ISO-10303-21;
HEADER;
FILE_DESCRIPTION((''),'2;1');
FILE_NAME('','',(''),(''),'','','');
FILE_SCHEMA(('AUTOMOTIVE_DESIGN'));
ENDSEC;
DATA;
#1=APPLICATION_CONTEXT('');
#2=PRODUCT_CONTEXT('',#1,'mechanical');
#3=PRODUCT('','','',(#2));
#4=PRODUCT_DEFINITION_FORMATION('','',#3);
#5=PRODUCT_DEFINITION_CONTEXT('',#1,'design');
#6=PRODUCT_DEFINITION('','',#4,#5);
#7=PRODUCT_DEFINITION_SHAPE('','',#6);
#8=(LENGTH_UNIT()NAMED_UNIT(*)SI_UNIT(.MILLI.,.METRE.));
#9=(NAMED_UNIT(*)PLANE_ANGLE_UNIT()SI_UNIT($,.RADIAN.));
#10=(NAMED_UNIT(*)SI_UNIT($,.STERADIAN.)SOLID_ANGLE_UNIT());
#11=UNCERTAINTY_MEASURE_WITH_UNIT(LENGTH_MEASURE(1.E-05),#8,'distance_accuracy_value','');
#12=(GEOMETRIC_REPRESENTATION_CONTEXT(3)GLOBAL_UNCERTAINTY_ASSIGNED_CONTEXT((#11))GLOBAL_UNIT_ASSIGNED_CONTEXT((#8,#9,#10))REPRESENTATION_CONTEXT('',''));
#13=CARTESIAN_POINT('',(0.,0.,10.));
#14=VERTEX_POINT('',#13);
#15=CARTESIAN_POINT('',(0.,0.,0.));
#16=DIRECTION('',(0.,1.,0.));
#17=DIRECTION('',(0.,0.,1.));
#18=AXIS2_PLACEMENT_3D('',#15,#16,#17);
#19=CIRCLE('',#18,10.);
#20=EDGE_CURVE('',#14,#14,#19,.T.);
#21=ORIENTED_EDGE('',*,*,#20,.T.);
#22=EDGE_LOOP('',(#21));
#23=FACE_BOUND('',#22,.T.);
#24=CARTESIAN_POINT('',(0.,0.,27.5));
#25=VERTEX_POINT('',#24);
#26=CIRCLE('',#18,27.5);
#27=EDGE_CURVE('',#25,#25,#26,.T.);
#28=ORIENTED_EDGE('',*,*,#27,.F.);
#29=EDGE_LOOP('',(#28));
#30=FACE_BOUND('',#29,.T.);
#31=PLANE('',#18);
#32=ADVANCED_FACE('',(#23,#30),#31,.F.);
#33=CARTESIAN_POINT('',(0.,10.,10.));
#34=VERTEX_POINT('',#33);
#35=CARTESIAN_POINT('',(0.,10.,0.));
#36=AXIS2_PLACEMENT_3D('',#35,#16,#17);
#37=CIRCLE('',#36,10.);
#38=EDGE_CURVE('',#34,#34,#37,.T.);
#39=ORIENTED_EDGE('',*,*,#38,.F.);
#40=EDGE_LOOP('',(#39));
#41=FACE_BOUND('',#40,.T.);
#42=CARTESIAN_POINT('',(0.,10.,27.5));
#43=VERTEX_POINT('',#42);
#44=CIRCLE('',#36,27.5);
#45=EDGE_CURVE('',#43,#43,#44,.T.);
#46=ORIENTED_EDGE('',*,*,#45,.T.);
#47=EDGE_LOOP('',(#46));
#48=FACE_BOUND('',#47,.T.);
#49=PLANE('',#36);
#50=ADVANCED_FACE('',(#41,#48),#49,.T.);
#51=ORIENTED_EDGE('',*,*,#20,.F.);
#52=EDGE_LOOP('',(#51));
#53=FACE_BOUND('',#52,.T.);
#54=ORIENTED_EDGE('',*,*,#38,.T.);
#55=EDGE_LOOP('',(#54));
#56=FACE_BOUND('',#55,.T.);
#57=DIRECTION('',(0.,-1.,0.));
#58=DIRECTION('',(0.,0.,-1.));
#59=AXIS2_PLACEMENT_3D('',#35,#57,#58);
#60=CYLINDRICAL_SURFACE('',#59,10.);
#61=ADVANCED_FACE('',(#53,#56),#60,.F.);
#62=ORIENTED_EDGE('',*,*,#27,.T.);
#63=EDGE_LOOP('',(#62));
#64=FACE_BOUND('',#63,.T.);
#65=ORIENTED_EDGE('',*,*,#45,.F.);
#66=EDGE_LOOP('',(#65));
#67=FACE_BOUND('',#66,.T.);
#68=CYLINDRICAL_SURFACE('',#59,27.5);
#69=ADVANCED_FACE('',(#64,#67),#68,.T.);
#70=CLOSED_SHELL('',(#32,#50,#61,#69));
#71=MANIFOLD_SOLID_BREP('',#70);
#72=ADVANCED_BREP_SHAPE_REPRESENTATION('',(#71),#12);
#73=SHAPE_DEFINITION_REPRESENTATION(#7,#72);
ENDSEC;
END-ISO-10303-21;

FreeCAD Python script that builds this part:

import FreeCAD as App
import Part
import Sketcher

V = App.Vector

doc = App.newDocument("Part")
body = doc.addObject("PartDesign::Body", "Body")

sketch1 = body.newObject("Sketcher::SketchObject", "Sketch")
sketch1.AttachmentSupport = (doc.getObject("XZ_Plane"), [""])
sketch1.MapMode = "FlatFace"
sketch1.addGeometry(Part.Circle(V(0, 0, 0), V(0, 0, 1), 28), False)
sketch1.addGeometry(Part.Circle(V(0, 0, 0), V(0, 0, 1), 10), False)
sketch1.addConstraint(Sketcher.Constraint("Coincident", 0, 3, -1, 1))
sketch1.addConstraint(Sketcher.Constraint("Coincident", 1, 3, -1, 1))
sketch1.addConstraint(Sketcher.Constraint("Diameter", 0, 55.0))
sketch1.addConstraint(Sketcher.Constraint("Diameter", 1, 20.0))
pad1 = body.newObject("PartDesign::Pad", "Pad")
pad1.Profile = sketch1
pad1.Length = 10
pad1.Reversed = True

doc.recompute()
